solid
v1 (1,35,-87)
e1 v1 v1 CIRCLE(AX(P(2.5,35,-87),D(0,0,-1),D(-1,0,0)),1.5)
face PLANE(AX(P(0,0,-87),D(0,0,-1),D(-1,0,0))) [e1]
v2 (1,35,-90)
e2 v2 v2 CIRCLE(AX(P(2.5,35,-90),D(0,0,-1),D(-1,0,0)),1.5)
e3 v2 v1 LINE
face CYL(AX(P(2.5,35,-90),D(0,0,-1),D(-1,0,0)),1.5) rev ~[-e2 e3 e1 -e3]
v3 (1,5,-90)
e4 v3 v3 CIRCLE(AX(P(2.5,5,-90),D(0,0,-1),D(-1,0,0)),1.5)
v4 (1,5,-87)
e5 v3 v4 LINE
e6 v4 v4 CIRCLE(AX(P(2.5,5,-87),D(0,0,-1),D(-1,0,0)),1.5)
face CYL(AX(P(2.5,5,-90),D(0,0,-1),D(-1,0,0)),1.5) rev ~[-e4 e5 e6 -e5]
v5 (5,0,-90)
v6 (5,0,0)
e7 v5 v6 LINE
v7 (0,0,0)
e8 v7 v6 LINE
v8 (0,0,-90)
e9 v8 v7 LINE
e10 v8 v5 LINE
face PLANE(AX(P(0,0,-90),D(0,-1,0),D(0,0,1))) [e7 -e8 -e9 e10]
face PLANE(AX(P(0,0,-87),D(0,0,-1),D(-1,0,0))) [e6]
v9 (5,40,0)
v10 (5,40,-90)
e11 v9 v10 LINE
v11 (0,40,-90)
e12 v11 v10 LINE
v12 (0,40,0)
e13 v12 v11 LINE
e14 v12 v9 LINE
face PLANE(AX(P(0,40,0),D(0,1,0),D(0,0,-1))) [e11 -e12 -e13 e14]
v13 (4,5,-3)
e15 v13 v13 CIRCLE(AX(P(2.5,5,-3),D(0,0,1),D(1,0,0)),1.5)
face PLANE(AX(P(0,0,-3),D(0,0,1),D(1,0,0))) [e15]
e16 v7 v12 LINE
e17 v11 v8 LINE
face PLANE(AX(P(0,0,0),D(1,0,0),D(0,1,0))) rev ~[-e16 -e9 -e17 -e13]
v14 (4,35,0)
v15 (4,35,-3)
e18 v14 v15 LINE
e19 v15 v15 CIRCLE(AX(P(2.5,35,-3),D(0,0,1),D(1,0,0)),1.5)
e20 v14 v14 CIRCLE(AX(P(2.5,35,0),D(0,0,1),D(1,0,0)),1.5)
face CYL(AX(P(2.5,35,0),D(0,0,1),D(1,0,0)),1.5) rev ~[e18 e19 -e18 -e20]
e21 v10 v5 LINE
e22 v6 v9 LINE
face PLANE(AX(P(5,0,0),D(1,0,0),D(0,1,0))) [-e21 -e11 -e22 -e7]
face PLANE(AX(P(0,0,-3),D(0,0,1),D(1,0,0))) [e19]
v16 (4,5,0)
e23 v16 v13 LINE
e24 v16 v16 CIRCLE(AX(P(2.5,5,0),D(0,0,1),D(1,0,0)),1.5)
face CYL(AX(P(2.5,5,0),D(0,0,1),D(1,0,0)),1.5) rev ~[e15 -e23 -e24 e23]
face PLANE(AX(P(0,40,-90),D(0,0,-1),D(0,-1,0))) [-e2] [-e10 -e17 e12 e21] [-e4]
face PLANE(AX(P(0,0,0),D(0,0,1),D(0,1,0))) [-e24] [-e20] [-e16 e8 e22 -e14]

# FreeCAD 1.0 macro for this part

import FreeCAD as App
import Part
import Sketcher

V = App.Vector


def add_polygon(sketch, points):
    """Adds a closed chain of lines whose ends are joined by coincident constraints."""
    first, n = sketch.GeometryCount, len(points)
    for a, b in zip(points, points[1:] + points[:1]):
        sketch.addGeometry(Part.LineSegment(App.Vector(*a, 0), App.Vector(*b, 0)), False)
    for i in range(n):
        sketch.addConstraint(Sketcher.Constraint("Coincident", first + i, 2, first + (i + 1) % n, 1))

doc = App.newDocument("Part")
params = doc.addObject("Spreadsheet::Sheet", "Params")
for row, (alias, value) in enumerate([
    ("sketch1_width", "40 mm"),
    ("sketch1_height", "90 mm"),
    ("pad1_length", "5 mm"),
    ("sketch2_diameter", "3 mm"),
    ("pocket1_length", "3 mm"),
    ("sketch3_diameter", "3 mm"),
    ("pocket2_length", "3 mm"),
], start=1):
    params.set(f"A{row}", alias)
    params.set(f"B{row}", "=" + value)
    params.setAlias(f"B{row}", alias)

body = doc.addObject("PartDesign::Body", "Body")

# Sketch on YZ plane
sketch1 = body.newObject("Sketcher::SketchObject", "Sketch")
sketch1.AttachmentSupport = (doc.getObject("YZ_Plane"), [""])
sketch1.MapMode = "FlatFace"
add_polygon(sketch1, [(40, 0), (0, 0), (0, -90), (40, -90)])  # lines 0-3
sketch1.addConstraint([
    Sketcher.Constraint("Horizontal", 0),
    Sketcher.Constraint("Vertical", 1),
    Sketcher.Constraint("Horizontal", 2),
    Sketcher.Constraint("Vertical", 3),
    Sketcher.Constraint("Coincident", 0, 2, -1, 1),
    Sketcher.Constraint("DistanceX", 0, 2, 0, 1, 40.0),
    Sketcher.Constraint("DistanceY", 1, 2, 1, 1, 90.0),
])
sketch1.setExpression("Constraints[9]", "Params.sketch1_width")
sketch1.setExpression("Constraints[10]", "Params.sketch1_height")
pad1 = body.newObject("PartDesign::Pad", "Pad")
pad1.Profile = sketch1
pad1.setExpression("Length", "Params.pad1_length")

# Sketch on XY plane
sketch2 = body.newObject("Sketcher::SketchObject", "Sketch001")
sketch2.AttachmentSupport = (doc.getObject("XY_Plane"), [""])
sketch2.MapMode = "FlatFace"
sketch2.addGeometry([
    Part.Circle(V(2.5, 5, 0), V(0, 0, 1), 1.5),
    Part.Circle(V(2.5, 35, 0), V(0, 0, 1), 1.5),
], False)
sketch2.addConstraint([
    Sketcher.Constraint("Equal", 0, 1),
    Sketcher.Constraint("Vertical", 0, 3, 1, 3),
    Sketcher.Constraint("Diameter", 0, 3.0),
    Sketcher.Constraint("DistanceY", -1, 1, 0, 3, 5.0),
    Sketcher.Constraint("DistanceX", -1, 1, 0, 3, 2.5),
    Sketcher.Constraint("DistanceY", -1, 1, 1, 3, 35.0),
])
sketch2.setExpression("Constraints[2]", "Params.sketch2_diameter")
pocket1 = body.newObject("PartDesign::Pocket", "Pocket")
pocket1.Profile = sketch2
pocket1.setExpression("Length", "Params.pocket1_length")

# Sketch on XY plane
sketch3 = body.newObject("Sketcher::SketchObject", "Sketch002")
sketch3.AttachmentSupport = (doc.getObject("XY_Plane"), [""])
sketch3.MapMode = "FlatFace"
sketch3.AttachmentOffset = App.Placement(V(0, 0, -90), App.Rotation())
sketch3.addGeometry([
    Part.Circle(V(2.5, 5, 0), V(0, 0, 1), 1.5),
    Part.Circle(V(2.5, 35, 0), V(0, 0, 1), 1.5),
], False)
sketch3.addConstraint([
    Sketcher.Constraint("Equal", 0, 1),
    Sketcher.Constraint("Vertical", 0, 3, 1, 3),
    Sketcher.Constraint("Diameter", 0, 3.0),
    Sketcher.Constraint("DistanceY", -1, 1, 0, 3, 5.0),
    Sketcher.Constraint("DistanceY", -1, 1, 1, 3, 35.0),
    Sketcher.Constraint("DistanceX", -1, 1, 0, 3, 2.5),
])
sketch3.setExpression("Constraints[2]", "Params.sketch3_diameter")
pocket2 = body.newObject("PartDesign::Pocket", "Pocket001")
pocket2.Profile = sketch3
pocket2.setExpression("Length", "Params.pocket2_length")
pocket2.Reversed = True

doc.recompute()
